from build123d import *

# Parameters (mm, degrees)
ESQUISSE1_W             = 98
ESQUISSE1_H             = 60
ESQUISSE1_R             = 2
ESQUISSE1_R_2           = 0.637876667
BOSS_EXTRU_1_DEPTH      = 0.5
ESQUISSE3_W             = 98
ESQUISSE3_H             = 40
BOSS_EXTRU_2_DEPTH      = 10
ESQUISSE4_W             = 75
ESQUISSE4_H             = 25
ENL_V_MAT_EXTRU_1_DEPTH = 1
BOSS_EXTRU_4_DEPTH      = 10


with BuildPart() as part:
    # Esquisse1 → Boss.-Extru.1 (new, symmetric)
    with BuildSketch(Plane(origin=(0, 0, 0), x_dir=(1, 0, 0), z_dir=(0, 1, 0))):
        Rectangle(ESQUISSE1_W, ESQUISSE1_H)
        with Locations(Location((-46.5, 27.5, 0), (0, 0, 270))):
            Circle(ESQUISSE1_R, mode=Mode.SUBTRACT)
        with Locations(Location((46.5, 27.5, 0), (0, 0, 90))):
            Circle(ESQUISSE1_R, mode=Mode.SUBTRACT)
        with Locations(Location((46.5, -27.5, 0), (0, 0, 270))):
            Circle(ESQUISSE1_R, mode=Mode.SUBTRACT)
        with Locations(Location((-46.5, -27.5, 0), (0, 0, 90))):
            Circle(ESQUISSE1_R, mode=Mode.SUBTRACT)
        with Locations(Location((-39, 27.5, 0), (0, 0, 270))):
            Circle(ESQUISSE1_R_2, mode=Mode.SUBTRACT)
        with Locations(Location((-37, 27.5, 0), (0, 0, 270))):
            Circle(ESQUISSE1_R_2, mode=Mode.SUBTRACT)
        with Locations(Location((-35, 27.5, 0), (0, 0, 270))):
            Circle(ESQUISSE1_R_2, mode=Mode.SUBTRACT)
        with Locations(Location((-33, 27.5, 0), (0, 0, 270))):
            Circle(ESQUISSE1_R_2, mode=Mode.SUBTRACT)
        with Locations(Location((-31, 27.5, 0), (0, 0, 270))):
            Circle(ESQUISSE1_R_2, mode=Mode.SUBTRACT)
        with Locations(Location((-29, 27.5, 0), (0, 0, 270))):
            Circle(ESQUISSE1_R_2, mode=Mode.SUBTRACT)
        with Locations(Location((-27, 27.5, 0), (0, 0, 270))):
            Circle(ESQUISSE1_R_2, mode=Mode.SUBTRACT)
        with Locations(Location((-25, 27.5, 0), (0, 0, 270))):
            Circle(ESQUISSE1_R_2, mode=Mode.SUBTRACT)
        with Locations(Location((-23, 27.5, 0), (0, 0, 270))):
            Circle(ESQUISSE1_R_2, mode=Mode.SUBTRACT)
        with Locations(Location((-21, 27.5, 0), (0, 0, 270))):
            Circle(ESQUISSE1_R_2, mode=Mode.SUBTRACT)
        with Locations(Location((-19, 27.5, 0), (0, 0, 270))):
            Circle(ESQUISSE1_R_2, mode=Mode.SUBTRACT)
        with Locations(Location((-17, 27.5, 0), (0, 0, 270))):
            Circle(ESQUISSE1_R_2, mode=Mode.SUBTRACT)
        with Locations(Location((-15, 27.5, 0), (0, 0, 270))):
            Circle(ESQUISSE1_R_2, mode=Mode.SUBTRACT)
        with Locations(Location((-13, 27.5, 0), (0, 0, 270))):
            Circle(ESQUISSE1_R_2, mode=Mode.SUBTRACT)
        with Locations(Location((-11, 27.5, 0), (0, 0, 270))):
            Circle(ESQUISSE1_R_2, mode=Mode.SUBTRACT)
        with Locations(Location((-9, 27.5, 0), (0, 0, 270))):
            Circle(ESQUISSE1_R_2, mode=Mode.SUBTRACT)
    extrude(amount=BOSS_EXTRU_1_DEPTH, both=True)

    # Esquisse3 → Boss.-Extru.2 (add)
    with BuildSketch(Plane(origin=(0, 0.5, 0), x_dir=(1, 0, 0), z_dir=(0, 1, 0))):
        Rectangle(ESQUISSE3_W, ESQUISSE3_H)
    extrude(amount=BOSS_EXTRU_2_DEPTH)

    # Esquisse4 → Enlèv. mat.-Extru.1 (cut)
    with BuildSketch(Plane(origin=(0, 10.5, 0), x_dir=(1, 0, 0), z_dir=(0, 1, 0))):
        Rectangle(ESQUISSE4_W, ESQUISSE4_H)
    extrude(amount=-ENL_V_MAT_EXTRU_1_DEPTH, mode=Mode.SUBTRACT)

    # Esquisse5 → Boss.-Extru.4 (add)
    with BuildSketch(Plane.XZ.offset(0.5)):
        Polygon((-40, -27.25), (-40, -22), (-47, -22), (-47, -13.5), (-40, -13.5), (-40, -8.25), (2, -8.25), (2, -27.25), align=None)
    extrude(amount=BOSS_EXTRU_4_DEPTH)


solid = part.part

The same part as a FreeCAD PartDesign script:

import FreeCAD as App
import Part
import Sketcher

V = App.Vector


def add_polygon(sketch, points):
    """Adds a closed chain of lines whose ends are joined by coincident constraints."""
    first, n = sketch.GeometryCount, len(points)
    for a, b in zip(points, points[1:] + points[:1]):
        sketch.addGeometry(Part.LineSegment(App.Vector(*a, 0), App.Vector(*b, 0)), False)
    for i in range(n):
        sketch.addConstraint(Sketcher.Constraint("Coincident", first + i, 2, first + (i + 1) % n, 1))

doc = App.newDocument("Part")
body = doc.addObject("PartDesign::Body", "Body")

sketch1 = doc.addObject("Sketcher::SketchObject", "Sketch")
body.addObject(sketch1)
sketch1.AttachmentSupport = (doc.XZ_Plane, [""])
sketch1.MapMode = "FlatFace"
add_polygon(sketch1, [(-49, -30), (-49, 30), (49, 30), (49, -30)])
sketch1.addGeometry(Part.Circle(V(-46.5, 27.5, 0), V(0, 0, 1), 2), False)
sketch1.addGeometry(Part.Circle(V(46.5, 27.5, 0), V(0, 0, 1), 2), False)
sketch1.addGeometry(Part.Circle(V(-46.5, -27.5, 0), V(0, 0, 1), 2), False)
sketch1.addGeometry(Part.Circle(V(-39, -27.5, 0), V(0, 0, 1), 0.637877), False)
sketch1.addGeometry(Part.Circle(V(-37, -27.5, 0), V(0, 0, 1), 0.637877), False)
sketch1.addGeometry(Part.Circle(V(-35, -27.5, 0), V(0, 0, 1), 0.637877), False)
sketch1.addGeometry(Part.Circle(V(-33, -27.5, 0), V(0, 0, 1), 0.637877), False)
sketch1.addGeometry(Part.Circle(V(-31, -27.5, 0), V(0, 0, 1), 0.637877), False)
sketch1.addGeometry(Part.Circle(V(-29, -27.5, 0), V(0, 0, 1), 0.637877), False)
sketch1.addGeometry(Part.Circle(V(-27, -27.5, 0), V(0, 0, 1), 0.637877), False)
sketch1.addGeometry(Part.Circle(V(-25, -27.5, 0), V(0, 0, 1), 0.637877), False)
sketch1.addGeometry(Part.Circle(V(-23, -27.5, 0), V(0, 0, 1), 0.637877), False)
sketch1.addGeometry(Part.Circle(V(-21, -27.5, 0), V(0, 0, 1), 0.637877), False)
sketch1.addGeometry(Part.Circle(V(-19, -27.5, 0), V(0, 0, 1), 0.637877), False)
sketch1.addGeometry(Part.Circle(V(-17, -27.5, 0), V(0, 0, 1), 0.637877), False)
sketch1.addGeometry(Part.Circle(V(-15, -27.5, 0), V(0, 0, 1), 0.637877), False)
sketch1.addGeometry(Part.Circle(V(-13, -27.5, 0), V(0, 0, 1), 0.637877), False)
sketch1.addGeometry(Part.Circle(V(-11, -27.5, 0), V(0, 0, 1), 0.637877), False)
sketch1.addGeometry(Part.Circle(V(-9, -27.5, 0), V(0, 0, 1), 0.637877), False)
sketch1.addGeometry(Part.Circle(V(46.5, -27.5, 0), V(0, 0, 1), 2), False)
sketch1.addConstraint([
    Sketcher.Constraint("Vertical", 0),
    Sketcher.Constraint("Horizontal", 1),
    Sketcher.Constraint("Vertical", 2),
    Sketcher.Constraint("Horizontal", 3),
    Sketcher.Constraint("Equal", 4, 5),
    Sketcher.Constraint("Equal", 5, 6),
    Sketcher.Constraint("Equal", 7, 8),
    Sketcher.Constraint("Equal", 8, 9),
    Sketcher.Constraint("Equal", 9, 10),
    Sketcher.Constraint("Equal", 10, 11),
    Sketcher.Constraint("Equal", 11, 12),
    Sketcher.Constraint("Equal", 12, 13),
    Sketcher.Constraint("Equal", 13, 14),
    Sketcher.Constraint("Equal", 14, 15),
    Sketcher.Constraint("Equal", 15, 16),
    Sketcher.Constraint("Equal", 16, 17),
    Sketcher.Constraint("Equal", 17, 18),
    Sketcher.Constraint("Equal", 18, 19),
    Sketcher.Constraint("Equal", 19, 20),
    Sketcher.Constraint("Equal", 20, 21),
    Sketcher.Constraint("Equal", 21, 22),
    Sketcher.Constraint("Equal", 6, 23),
    Sketcher.Constraint("Symmetric", 5, 3, 6, 3, -1, 1),
    Sketcher.Constraint("Symmetric", 4, 3, 23, 3, -1, 1),
    Sketcher.Constraint("Symmetric", 0, 2, 2, 2, -1, 1),
    Sketcher.Constraint("Symmetric", 4, 3, 5, 3, -2),
    Sketcher.Constraint("Horizontal", 6, 3, 7, 3),
    Sketcher.Constraint("Horizontal", 7, 3, 8, 3),
    Sketcher.Constraint("Horizontal", 8, 3, 9, 3),
    Sketcher.Constraint("Horizontal", 9, 3, 10, 3),
    Sketcher.Constraint("Horizontal", 10, 3, 11, 3),
    Sketcher.Constraint("Horizontal", 11, 3, 12, 3),
    Sketcher.Constraint("Horizontal", 12, 3, 13, 3),
    Sketcher.Constraint("Horizontal", 13, 3, 14, 3),
    Sketcher.Constraint("Horizontal", 14, 3, 15, 3),
    Sketcher.Constraint("Horizontal", 15, 3, 16, 3),
    Sketcher.Constraint("Horizontal", 16, 3, 17, 3),
    Sketcher.Constraint("Horizontal", 17, 3, 18, 3),
    Sketcher.Constraint("Horizontal", 18, 3, 19, 3),
    Sketcher.Constraint("Horizontal", 19, 3, 20, 3),
    Sketcher.Constraint("Horizontal", 20, 3, 21, 3),
    Sketcher.Constraint("Horizontal", 21, 3, 22, 3),
    Sketcher.Constraint("Diameter", 4, 4.0),
    Sketcher.Constraint("DistanceX", 1, 1, 1, 2, 98.0),
    Sketcher.Constraint("DistanceY", 0, 1, 0, 2, 60.0),
    Sketcher.Constraint("DistanceX", 7, 3, -1, 1, 39.0),
    Sketcher.Constraint("DistanceX", 8, 3, -1, 1, 37.0),
    Sketcher.Constraint("DistanceX", 9, 3, -1, 1, 35.0),
    Sketcher.Constraint("DistanceX", 10, 3, -1, 1, 33.0),
    Sketcher.Constraint("DistanceX", 11, 3, -1, 1, 31.0),
    Sketcher.Constraint("DistanceX", 12, 3, -1, 1, 29.0),
    Sketcher.Constraint("DistanceX", 13, 3, -1, 1, 27.0),
    Sketcher.Constraint("DistanceX", 14, 3, -1, 1, 25.0),
    Sketcher.Constraint("DistanceX", 15, 3, -1, 1, 23.0),
    Sketcher.Constraint("DistanceX", 16, 3, -1, 1, 21.0),
    Sketcher.Constraint("DistanceX", 17, 3, -1, 1, 19.0),
    Sketcher.Constraint("DistanceX", 18, 3, -1, 1, 17.0),
    Sketcher.Constraint("DistanceX", 19, 3, -1, 1, 15.0),
    Sketcher.Constraint("DistanceX", 20, 3, -1, 1, 13.0),
    Sketcher.Constraint("DistanceX", 21, 3, -1, 1, 11.0),
    Sketcher.Constraint("DistanceX", 22, 3, -1, 1, 9.0),
    Sketcher.Constraint("DistanceX", 4, 3, 5, 3, 93.0),
    Sketcher.Constraint("DistanceY", 6, 3, 4, 3, 55.0),
    Sketcher.Constraint("Diameter", 7, 1.275753),
])
pad1 = doc.addObject("PartDesign::Pad", "Pad")
body.addObject(pad1)
pad1.Profile = sketch1
pad1.Length = 1
pad1.Midplane = True

sketch2 = doc.addObject("Sketcher::SketchObject", "Sketch001")
body.addObject(sketch2)
sketch2.AttachmentSupport = (doc.XZ_Plane, [""])
sketch2.MapMode = "FlatFace"
sketch2.AttachmentOffset = App.Placement(V(0, 0, -0.5), App.Rotation())
add_polygon(sketch2, [(-49, -20), (-49, 20), (49, 20), (49, -20)])
sketch2.addConstraint([
    Sketcher.Constraint("Vertical", 0),
    Sketcher.Constraint("Horizontal", 1),
    Sketcher.Constraint("Vertical", 2),
    Sketcher.Constraint("Horizontal", 3),
    Sketcher.Constraint("Symmetric", 0, 2, 2, 2, -1, 1),
    Sketcher.Constraint("DistanceX", 1, 1, 1, 2, 98.0),
    Sketcher.Constraint("DistanceY", 0, 1, 0, 2, 40.0),
])
pad2 = doc.addObject("PartDesign::Pad", "Pad001")
body.addObject(pad2)
pad2.Profile = sketch2
pad2.Length = 10
pad2.Reversed = True

sketch3 = doc.addObject("Sketcher::SketchObject", "Sketch002")
body.addObject(sketch3)
sketch3.AttachmentSupport = (doc.XZ_Plane, [""])
sketch3.MapMode = "FlatFace"
sketch3.AttachmentOffset = App.Placement(V(0, 0, -10.5), App.Rotation())
add_polygon(sketch3, [(-37.5, -12.5), (-37.5, 12.5), (37.5, 12.5), (37.5, -12.5)])
sketch3.addConstraint([
    Sketcher.Constraint("Vertical", 0),
    Sketcher.Constraint("Horizontal", 1),
    Sketcher.Constraint("Vertical", 2),
    Sketcher.Constraint("Horizontal", 3),
    Sketcher.Constraint("Symmetric", 0, 2, 2, 2, -1, 1),
    Sketcher.Constraint("DistanceX", 1, 1, 1, 2, 75.0),
    Sketcher.Constraint("DistanceY", 0, 1, 0, 2, 25.0),
])
pocket1 = doc.addObject("PartDesign::Pocket", "Pocket")
body.addObject(pocket1)
pocket1.Profile = sketch3
pocket1.Length = 1
pocket1.Reversed = True

sketch4 = doc.addObject("Sketcher::SketchObject", "Sketch003")
body.addObject(sketch4)
sketch4.AttachmentSupport = (doc.XZ_Plane, [""])
sketch4.MapMode = "FlatFace"
sketch4.AttachmentOffset = App.Placement(V(0, 0, 0.5), App.Rotation())
add_polygon(sketch4, [(-40, -22), (-40, -27.25), (2, -27.25), (2, -8.25), (-40, -8.25), (-40, -13.5), (-47, -13.5), (-47, -22)])
sketch4.addConstraint([
    Sketcher.Constraint("Vertical", 0),
    Sketcher.Constraint("Horizontal", 1),
    Sketcher.Constraint("Vertical", 2),
    Sketcher.Constraint("Horizontal", 3),
    Sketcher.Constraint("Vertical", 4),
    Sketcher.Constraint("Horizontal", 5),
    Sketcher.Constraint("Vertical", 6),
    Sketcher.Constraint("Horizontal", 7),
    Sketcher.Constraint("Vertical", 0, 2, 3, 2),
    Sketcher.Constraint("Equal", 0, 4),
    Sketcher.Constraint("DistanceX", 1, 1, 1, 2, 42.0),
    Sketcher.Constraint("DistanceX", 5, 2, 5, 1, 7.0),
    Sketcher.Constraint("DistanceY", 2, 1, 2, 2, 19.0),
    Sketcher.Constraint("DistanceY", 6, 2, 6, 1, 8.5),
    Sketcher.Constraint("DistanceX", 0, 2, -1, 1, 40.0),
    Sketcher.Constraint("DistanceY", 6, 2, -1, 1, 22.0),
])
pad3 = doc.addObject("PartDesign::Pad", "Pad002")
body.addObject(pad3)
pad3.Profile = sketch4
pad3.Length = 10

doc.recompute()
